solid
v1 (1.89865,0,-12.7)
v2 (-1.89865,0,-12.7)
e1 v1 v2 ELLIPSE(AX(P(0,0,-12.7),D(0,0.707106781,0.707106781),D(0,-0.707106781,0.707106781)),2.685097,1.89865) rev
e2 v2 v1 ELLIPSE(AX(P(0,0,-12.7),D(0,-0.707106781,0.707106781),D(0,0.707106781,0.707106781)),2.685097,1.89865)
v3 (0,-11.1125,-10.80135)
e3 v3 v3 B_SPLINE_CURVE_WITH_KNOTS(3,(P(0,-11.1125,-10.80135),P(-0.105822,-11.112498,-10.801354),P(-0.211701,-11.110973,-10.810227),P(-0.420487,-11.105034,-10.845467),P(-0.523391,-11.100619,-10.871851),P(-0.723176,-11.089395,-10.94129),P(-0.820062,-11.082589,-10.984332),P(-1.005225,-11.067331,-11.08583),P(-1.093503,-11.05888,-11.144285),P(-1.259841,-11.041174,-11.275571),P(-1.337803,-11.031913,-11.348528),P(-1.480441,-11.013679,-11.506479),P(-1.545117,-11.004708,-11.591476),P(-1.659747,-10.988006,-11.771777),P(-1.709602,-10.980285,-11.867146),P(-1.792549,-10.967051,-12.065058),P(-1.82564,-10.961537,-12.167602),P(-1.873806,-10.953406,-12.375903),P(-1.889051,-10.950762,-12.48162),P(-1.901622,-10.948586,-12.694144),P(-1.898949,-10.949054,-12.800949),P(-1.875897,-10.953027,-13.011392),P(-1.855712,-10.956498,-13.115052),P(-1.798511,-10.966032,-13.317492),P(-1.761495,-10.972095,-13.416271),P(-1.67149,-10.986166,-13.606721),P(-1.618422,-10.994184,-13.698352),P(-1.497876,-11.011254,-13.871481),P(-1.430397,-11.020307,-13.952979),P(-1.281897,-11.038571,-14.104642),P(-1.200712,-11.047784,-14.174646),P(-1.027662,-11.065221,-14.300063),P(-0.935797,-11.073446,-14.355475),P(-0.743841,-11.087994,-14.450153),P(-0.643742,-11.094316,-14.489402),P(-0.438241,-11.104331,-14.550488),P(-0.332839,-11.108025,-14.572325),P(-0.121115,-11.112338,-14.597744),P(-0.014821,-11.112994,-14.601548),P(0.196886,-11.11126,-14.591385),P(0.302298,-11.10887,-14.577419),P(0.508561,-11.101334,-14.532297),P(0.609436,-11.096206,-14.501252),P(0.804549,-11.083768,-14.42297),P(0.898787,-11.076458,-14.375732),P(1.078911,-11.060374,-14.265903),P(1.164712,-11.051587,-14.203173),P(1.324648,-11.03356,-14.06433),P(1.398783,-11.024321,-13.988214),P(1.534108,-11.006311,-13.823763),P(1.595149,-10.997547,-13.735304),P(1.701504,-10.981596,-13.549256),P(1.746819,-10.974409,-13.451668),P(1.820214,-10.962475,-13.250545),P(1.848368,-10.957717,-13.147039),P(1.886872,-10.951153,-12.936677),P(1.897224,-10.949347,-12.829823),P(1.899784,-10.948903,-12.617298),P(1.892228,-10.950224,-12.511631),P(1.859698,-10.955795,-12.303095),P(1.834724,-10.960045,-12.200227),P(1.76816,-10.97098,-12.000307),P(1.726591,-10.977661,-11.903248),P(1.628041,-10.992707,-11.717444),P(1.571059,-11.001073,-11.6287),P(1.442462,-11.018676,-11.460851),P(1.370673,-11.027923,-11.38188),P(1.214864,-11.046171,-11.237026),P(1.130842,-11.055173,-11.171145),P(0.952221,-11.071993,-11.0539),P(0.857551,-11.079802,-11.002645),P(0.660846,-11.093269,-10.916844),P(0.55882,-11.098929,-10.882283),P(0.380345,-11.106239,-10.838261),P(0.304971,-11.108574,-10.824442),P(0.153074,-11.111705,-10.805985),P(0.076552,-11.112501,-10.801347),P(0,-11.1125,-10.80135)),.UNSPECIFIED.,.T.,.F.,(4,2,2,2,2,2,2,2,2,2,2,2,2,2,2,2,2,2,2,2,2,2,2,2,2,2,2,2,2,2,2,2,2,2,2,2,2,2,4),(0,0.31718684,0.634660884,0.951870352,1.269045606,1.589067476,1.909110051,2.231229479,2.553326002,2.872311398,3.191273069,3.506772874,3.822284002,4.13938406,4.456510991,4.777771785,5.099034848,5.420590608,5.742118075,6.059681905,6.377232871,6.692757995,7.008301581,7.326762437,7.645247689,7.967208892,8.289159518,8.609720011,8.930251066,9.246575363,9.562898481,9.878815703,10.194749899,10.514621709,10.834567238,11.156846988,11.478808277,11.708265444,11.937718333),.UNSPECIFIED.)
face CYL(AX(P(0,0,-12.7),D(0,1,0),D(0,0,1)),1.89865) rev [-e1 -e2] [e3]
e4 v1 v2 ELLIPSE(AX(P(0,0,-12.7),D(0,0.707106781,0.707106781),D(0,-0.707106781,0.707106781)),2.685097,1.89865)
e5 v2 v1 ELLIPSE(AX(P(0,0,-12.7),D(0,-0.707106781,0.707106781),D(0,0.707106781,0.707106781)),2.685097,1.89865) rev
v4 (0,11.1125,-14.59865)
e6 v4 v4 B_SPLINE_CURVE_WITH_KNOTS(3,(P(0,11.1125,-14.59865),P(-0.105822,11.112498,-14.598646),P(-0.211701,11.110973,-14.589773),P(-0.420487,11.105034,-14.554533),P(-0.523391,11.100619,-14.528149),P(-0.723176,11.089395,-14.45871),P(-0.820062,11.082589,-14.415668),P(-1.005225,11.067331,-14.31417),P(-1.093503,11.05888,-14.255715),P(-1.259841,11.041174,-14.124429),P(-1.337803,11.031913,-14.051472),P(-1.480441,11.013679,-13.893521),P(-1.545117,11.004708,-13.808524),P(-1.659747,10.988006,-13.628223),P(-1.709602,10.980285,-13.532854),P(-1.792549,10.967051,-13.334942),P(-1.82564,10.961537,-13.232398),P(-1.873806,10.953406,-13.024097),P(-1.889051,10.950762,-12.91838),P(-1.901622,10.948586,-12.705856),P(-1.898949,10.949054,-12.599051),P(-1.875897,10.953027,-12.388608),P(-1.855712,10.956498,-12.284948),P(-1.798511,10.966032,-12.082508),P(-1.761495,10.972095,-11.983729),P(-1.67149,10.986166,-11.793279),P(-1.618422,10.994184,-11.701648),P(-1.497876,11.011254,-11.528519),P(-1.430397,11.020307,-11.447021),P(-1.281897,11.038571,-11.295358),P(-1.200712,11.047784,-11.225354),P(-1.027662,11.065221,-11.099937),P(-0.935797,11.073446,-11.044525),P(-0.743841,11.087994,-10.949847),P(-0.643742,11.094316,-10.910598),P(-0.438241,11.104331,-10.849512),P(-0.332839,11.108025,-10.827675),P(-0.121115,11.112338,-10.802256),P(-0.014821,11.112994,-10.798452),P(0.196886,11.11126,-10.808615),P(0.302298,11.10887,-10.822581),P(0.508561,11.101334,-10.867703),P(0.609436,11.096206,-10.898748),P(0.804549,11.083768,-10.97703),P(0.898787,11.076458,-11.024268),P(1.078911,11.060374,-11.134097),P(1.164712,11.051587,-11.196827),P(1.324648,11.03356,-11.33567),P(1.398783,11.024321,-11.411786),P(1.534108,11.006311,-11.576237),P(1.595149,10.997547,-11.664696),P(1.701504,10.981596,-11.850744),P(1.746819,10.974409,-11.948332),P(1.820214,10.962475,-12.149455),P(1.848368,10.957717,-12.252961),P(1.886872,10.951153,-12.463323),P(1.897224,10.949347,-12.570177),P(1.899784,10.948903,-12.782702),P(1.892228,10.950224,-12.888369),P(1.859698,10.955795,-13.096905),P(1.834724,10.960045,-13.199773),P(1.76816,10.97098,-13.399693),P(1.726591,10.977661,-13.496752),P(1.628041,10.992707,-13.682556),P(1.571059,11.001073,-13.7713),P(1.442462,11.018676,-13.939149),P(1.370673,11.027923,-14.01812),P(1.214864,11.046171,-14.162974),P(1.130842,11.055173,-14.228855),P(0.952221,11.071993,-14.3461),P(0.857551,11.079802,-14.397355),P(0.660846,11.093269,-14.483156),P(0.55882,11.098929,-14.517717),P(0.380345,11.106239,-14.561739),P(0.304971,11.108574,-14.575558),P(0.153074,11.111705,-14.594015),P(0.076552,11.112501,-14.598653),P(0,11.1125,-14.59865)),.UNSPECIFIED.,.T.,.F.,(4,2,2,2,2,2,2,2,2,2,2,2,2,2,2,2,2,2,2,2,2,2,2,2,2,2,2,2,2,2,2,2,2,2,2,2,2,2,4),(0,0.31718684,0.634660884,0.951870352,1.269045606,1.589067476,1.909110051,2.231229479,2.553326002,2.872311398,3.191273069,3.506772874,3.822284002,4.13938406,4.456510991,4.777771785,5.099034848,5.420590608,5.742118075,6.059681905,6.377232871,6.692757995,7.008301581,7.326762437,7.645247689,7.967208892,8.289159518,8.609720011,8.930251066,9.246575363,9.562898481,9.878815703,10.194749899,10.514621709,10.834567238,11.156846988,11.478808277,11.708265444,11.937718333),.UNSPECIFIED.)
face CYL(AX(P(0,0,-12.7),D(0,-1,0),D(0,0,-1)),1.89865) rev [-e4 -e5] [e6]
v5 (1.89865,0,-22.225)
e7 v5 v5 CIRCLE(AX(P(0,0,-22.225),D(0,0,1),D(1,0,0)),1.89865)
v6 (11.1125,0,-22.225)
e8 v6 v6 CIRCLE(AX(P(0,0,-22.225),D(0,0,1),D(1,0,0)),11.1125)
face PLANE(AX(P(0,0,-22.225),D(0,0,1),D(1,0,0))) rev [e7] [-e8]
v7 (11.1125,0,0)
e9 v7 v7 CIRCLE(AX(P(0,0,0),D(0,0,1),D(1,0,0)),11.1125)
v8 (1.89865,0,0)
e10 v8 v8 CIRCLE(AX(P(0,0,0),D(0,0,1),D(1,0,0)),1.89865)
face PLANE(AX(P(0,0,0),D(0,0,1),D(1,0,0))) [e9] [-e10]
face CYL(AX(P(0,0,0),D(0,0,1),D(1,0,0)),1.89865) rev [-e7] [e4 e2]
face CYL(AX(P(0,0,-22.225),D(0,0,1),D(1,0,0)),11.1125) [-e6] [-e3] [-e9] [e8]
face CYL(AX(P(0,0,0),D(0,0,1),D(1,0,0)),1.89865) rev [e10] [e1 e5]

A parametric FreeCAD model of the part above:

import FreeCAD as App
import Part
import Sketcher

V = App.Vector
Q = App.Units.Quantity

doc = App.newDocument("Part")
body = doc.addObject("PartDesign::Body", "Body")

# Sketch on XY plane
sketch1 = doc.addObject("Sketcher::SketchObject", "Sketch")
body.addObject(sketch1)
sketch1.AttachmentSupport = (doc.XY_Plane, [""])
sketch1.MapMode = "FlatFace"
sketch1.addGeometry(Part.Circle(V(0, 0, 0), V(0, 0, 1), 11), False)
sketch1.addConstraint(Sketcher.Constraint("Coincident", 0, 3, -1, 1))
sketch1.addConstraint(Sketcher.Constraint("Diameter", 0, Q("0.875 in")))
pad1 = doc.addObject("PartDesign::Pad", "Pad")
body.addObject(pad1)
pad1.Profile = sketch1
pad1.Length = Q("0.875 in")
pad1.Reversed = True

# Sketch on XY plane
sketch2 = doc.addObject("Sketcher::SketchObject", "Sketch001")
body.addObject(sketch2)
sketch2.AttachmentSupport = (doc.XY_Plane, [""])
sketch2.MapMode = "FlatFace"
sketch2.addGeometry(Part.Circle(V(0, 0, 0), V(0, 0, 1), 1.9), False)
sketch2.addConstraint(Sketcher.Constraint("Coincident", 0, 3, -1, 1))
sketch2.addConstraint(Sketcher.Constraint("Diameter", 0, Q("0.1495 in")))
doc.recompute()
hole = doc.addObject("PartDesign::Hole", "Hole")
body.addObject(hole)
hole.Profile = sketch2
hole.ThreadType = "None"
hole.Diameter = Q("0.1495 in")
hole.DepthType = "ThroughAll"

# Sketch on YZ plane
sketch3 = doc.addObject("Sketcher::SketchObject", "Sketch002")
body.addObject(sketch3)
sketch3.AttachmentSupport = (doc.YZ_Plane, [""])
sketch3.MapMode = "FlatFace"
sketch3.addGeometry(Part.LineSegment(V(11.1, -12.7, 0), V(0, -12.7, 0)), False)
sketch3.addGeometry(Part.LineSegment(V(0, -12.7, 0), V(0, -14.6, 0)), False)
sketch3.addGeometry(Part.LineSegment(V(0, -14.6, 0), V(11.1, -14.6, 0)), False)
sketch3.addGeometry(Part.LineSegment(V(11.1, -14.6, 0), V(11.1, -12.7, 0)), False)
sketch3.addGeometry(Part.LineSegment(V(0, -12.7, 0), V(11.1, -12.7, 0)), True)  # axis
sketch3.addConstraint(Sketcher.Constraint("Coincident", 0, 2, 1, 1))
sketch3.addConstraint(Sketcher.Constraint("Coincident", 1, 2, 2, 1))
sketch3.addConstraint(Sketcher.Constraint("Coincident", 2, 2, 3, 1))
sketch3.addConstraint(Sketcher.Constraint("Coincident", 3, 2, 0, 1))
sketch3.addConstraint(Sketcher.Constraint("Horizontal", 0))
sketch3.addConstraint(Sketcher.Constraint("Vertical", 1))
sketch3.addConstraint(Sketcher.Constraint("Horizontal", 2))
sketch3.addConstraint(Sketcher.Constraint("Vertical", 3))
sketch3.addConstraint(Sketcher.Constraint("Horizontal", 4))
sketch3.addConstraint(Sketcher.Constraint("Coincident", 4, 1, 0, 2))
sketch3.addConstraint(Sketcher.Constraint("PointOnObject", 0, 2, -2))
sketch3.addConstraint(Sketcher.Constraint("Vertical", 2, 2, 4, 2))
sketch3.addConstraint(Sketcher.Constraint("DistanceY", 0, 2, -1, 1, Q("0.5 in")))
sketch3.addConstraint(Sketcher.Constraint("DistanceX", 0, 2, 0, 1, Q("0.4375 in")))
sketch3.addConstraint(Sketcher.Constraint("DistanceY", 1, 2, 1, 1, Q("1.89865 mm")))
groove = doc.addObject("PartDesign::Groove", "Groove")
body.addObject(groove)
groove.Profile = sketch3
groove.ReferenceAxis = (sketch3, ["Axis0"])
groove.Angle = 360

# Sketch on XZ plane
sketch4 = doc.addObject("Sketcher::SketchObject", "Sketch003")
body.addObject(sketch4)
sketch4.AttachmentSupport = (doc.XZ_Plane, [""])
sketch4.MapMode = "FlatFace"
sketch4.addGeometry(Part.Circle(V(0, -12.7, 0), V(0, 0, 1), 1.9), False)
sketch4.addConstraint(Sketcher.Constraint("PointOnObject", 0, 3, -2))
sketch4.addConstraint(Sketcher.Constraint("Diameter", 0, Q("0.1495 in")))
sketch4.addConstraint(Sketcher.Constraint("DistanceY", 0, 3, -1, 1, Q("0.5 in")))
doc.recompute()
hole2 = doc.addObject("PartDesign::Hole", "Hole001")
body.addObject(hole2)
hole2.Profile = sketch4
hole2.ThreadType = "None"
hole2.Diameter = Q("0.1495 in")
hole2.DepthType = "ThroughAll"
hole2.Reversed = True

doc.recompute()
